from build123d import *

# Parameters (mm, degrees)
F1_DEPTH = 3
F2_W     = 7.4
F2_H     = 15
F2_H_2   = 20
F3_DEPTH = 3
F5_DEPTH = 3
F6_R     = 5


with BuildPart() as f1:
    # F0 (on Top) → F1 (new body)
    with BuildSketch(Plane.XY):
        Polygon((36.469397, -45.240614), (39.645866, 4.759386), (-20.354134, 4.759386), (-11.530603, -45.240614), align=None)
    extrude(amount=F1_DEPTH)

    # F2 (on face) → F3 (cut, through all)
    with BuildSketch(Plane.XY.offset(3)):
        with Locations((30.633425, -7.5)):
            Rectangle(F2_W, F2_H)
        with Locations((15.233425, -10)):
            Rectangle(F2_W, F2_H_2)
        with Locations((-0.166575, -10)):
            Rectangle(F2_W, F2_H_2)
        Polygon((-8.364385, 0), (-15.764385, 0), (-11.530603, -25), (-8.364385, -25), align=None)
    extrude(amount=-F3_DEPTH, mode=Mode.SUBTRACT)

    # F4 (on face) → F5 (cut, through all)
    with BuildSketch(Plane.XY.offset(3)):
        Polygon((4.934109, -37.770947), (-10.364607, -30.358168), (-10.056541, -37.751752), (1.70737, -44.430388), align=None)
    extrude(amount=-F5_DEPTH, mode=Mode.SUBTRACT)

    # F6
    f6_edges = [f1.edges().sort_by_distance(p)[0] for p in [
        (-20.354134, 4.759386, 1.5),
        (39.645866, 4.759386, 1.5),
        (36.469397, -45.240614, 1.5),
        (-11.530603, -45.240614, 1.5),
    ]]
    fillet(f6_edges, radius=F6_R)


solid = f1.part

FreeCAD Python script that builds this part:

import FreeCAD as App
import Part
import Sketcher
from FreeCAD import Vector
Q = App.Units.Quantity


def edges_at(feature, points):
    """Names of the edges that pass closest to the given points."""
    edges = feature.Shape.Edges
    near = lambda p: min(range(len(edges)), key=lambda i: edges[i].distToShape(Part.Vertex(*p))[0])
    return sorted({f"Edge{near(p) + 1}" for p in points})


def add_polygon(sketch, points):
    """Adds a closed chain of lines whose ends are joined by coincident constraints."""
    first, n = sketch.GeometryCount, len(points)
    for a, b in zip(points, points[1:] + points[:1]):
        sketch.addGeometry(Part.LineSegment(App.Vector(*a, 0), App.Vector(*b, 0)), False)
    for i in range(n):
        sketch.addConstraint(Sketcher.Constraint("Coincident", first + i, 2, first + (i + 1) % n, 1))

doc = App.newDocument("Part")
body = doc.addObject("PartDesign::Body", "Body")

# Sketch on XY plane
sketch1 = doc.addObject("Sketcher::SketchObject", "Sketch")
body.addObject(sketch1)
sketch1.AttachmentSupport = (doc.XY_Plane, [""])
sketch1.MapMode = "FlatFace"
add_polygon(sketch1, [(36.469397, -45.240614), (39.645866, 4.759386), (-20.354134, 4.759386), (-11.530603, -45.240614)])  # lines 0-3
sketch1.addConstraint([
    Sketcher.Constraint("Horizontal", 1),
    Sketcher.Constraint("Horizontal", 3),
    Sketcher.Constraint("DistanceX", 1, 2, 1, 1, Q("60 mm")),
    Sketcher.Constraint("DistanceX", 3, 1, 3, 2, Q("48 mm")),
    Sketcher.Constraint("DistanceY", 2, 2, 1, 2, Q("50 mm")),
    Sketcher.Constraint("Distance", 2, Q("50.772578 mm")),
    Sketcher.Constraint("DistanceX", -1, 1, 0, 2, Q("39.645866 mm")),
    Sketcher.Constraint("DistanceY", -1, 1, 0, 2, Q("4.759386 mm")),
])
pad1 = doc.addObject("PartDesign::Pad", "Pad")
body.addObject(pad1)
pad1.Profile = sketch1
pad1.Length = 3

# Sketch on XY plane
sketch2 = doc.addObject("Sketcher::SketchObject", "Sketch001")
body.addObject(sketch2)
sketch2.AttachmentSupport = (doc.XY_Plane, [""])
sketch2.MapMode = "FlatFace"
sketch2.AttachmentOffset = App.Placement(Vector(0, 0, 3), App.Rotation())
add_polygon(sketch2, [(26.933425, 0), (26.933425, -15), (34.333425, -15), (34.333425, 0)])  # lines 0-3
add_polygon(sketch2, [(11.533425, 0), (11.533425, -20), (18.933425, -20), (18.933425, 0)])  # lines 4-7
add_polygon(sketch2, [(-3.866575, 0), (-3.866575, -20), (3.533425, -20), (3.533425, 0)])  # lines 8-11
add_polygon(sketch2, [(-8.364385, 0), (-15.764385, 0), (-11.530603, -25), (-8.364385, -25)])  # lines 12-15
sketch2.addConstraint([
    Sketcher.Constraint("Vertical", 0),
    Sketcher.Constraint("Horizontal", 1),
    Sketcher.Constraint("Vertical", 2),
    Sketcher.Constraint("Horizontal", 3),
    Sketcher.Constraint("Vertical", 4),
    Sketcher.Constraint("Horizontal", 5),
    Sketcher.Constraint("Vertical", 6),
    Sketcher.Constraint("Horizontal", 7),
    Sketcher.Constraint("Vertical", 8),
    Sketcher.Constraint("Horizontal", 9),
    Sketcher.Constraint("Vertical", 10),
    Sketcher.Constraint("Horizontal", 11),
    Sketcher.Constraint("Horizontal", 12),
    Sketcher.Constraint("Horizontal", 14),
    Sketcher.Constraint("Vertical", 15),
    Sketcher.Constraint("PointOnObject", 2, 2, -1),
    Sketcher.Constraint("PointOnObject", 6, 2, -1),
    Sketcher.Constraint("PointOnObject", 10, 2, -1),
    Sketcher.Constraint("PointOnObject", 12, 2, -1),
    Sketcher.Constraint("Horizontal", 5, 2, 8, 2),
    Sketcher.Constraint("Equal", 3, 5),
    Sketcher.Constraint("Equal", 7, 9),
    Sketcher.Constraint("Equal", 11, 12),
    Sketcher.Constraint("DistanceY", 0, 2, 0, 1, Q("15 mm")),
    Sketcher.Constraint("DistanceY", 4, 2, 4, 1, Q("20 mm")),
    Sketcher.Constraint("DistanceY", 15, 1, 15, 2, Q("25 mm")),
    Sketcher.Constraint("DistanceX", 1, 1, 1, 2, Q("7.4 mm")),
    Sketcher.Constraint("DistanceX", 5, 2, 0, 2, Q("8 mm")),
    Sketcher.Constraint("DistanceX", 9, 2, 4, 2, Q("8 mm")),
    Sketcher.Constraint("DistanceX", 14, 1, 14, 2, Q("3.166218 mm")),
    Sketcher.Constraint("DistanceX", 12, 2, 11, 2, Q("11.89781 mm")),
    Sketcher.Constraint("DistanceX", -1, 1, 0, 2, Q("26.933425 mm")),
])
pocket1 = doc.addObject("PartDesign::Pocket", "Pocket")
body.addObject(pocket1)
pocket1.Profile = sketch2
pocket1.Type = "ThroughAll"

# Sketch on XY plane
sketch3 = doc.addObject("Sketcher::SketchObject", "Sketch002")
body.addObject(sketch3)
sketch3.AttachmentSupport = (doc.XY_Plane, [""])
sketch3.MapMode = "FlatFace"
sketch3.AttachmentOffset = App.Placement(Vector(0, 0, 3), App.Rotation())
add_polygon(sketch3, [(4.934109, -37.770947), (-10.364607, -30.358168), (-10.056541, -37.751752), (1.70737, -44.430388)])  # lines 0-3
sketch3.addConstraint([
    Sketcher.Constraint("Perpendicular", 0, 3),
    Sketcher.Constraint("Equal", 1, 3),
    Sketcher.Constraint("Distance", 0, Q("17 mm")),
    Sketcher.Constraint("Distance", 1, Q("7.399999 mm")),
    Sketcher.Constraint("Distance", 2, Q("13.527519 mm")),
    Sketcher.Constraint("DistanceX", 1, 2, -1, 1, Q("10.056541 mm")),
    Sketcher.Constraint("DistanceX", -1, 1, 2, 2, Q("1.70737 mm")),
    Sketcher.Constraint("DistanceY", 0, 2, -1, 1, Q("30.358168 mm")),
])
pocket2 = doc.addObject("PartDesign::Pocket", "Pocket001")
body.addObject(pocket2)
pocket2.Profile = sketch3
pocket2.Type = "ThroughAll"
doc.recompute()

fillet = doc.addObject("PartDesign::Fillet", "Fillet")
body.addObject(fillet)
fillet.Base = (pocket2, edges_at(pocket2, [
    (-20.354, 4.759, 1.5),
    (39.646, 4.759, 1.5),
    (36.469, -45.241, 1.5),
    (-11.531, -45.241, 1.5),
]))
fillet.Radius = 5

doc.recompute()
